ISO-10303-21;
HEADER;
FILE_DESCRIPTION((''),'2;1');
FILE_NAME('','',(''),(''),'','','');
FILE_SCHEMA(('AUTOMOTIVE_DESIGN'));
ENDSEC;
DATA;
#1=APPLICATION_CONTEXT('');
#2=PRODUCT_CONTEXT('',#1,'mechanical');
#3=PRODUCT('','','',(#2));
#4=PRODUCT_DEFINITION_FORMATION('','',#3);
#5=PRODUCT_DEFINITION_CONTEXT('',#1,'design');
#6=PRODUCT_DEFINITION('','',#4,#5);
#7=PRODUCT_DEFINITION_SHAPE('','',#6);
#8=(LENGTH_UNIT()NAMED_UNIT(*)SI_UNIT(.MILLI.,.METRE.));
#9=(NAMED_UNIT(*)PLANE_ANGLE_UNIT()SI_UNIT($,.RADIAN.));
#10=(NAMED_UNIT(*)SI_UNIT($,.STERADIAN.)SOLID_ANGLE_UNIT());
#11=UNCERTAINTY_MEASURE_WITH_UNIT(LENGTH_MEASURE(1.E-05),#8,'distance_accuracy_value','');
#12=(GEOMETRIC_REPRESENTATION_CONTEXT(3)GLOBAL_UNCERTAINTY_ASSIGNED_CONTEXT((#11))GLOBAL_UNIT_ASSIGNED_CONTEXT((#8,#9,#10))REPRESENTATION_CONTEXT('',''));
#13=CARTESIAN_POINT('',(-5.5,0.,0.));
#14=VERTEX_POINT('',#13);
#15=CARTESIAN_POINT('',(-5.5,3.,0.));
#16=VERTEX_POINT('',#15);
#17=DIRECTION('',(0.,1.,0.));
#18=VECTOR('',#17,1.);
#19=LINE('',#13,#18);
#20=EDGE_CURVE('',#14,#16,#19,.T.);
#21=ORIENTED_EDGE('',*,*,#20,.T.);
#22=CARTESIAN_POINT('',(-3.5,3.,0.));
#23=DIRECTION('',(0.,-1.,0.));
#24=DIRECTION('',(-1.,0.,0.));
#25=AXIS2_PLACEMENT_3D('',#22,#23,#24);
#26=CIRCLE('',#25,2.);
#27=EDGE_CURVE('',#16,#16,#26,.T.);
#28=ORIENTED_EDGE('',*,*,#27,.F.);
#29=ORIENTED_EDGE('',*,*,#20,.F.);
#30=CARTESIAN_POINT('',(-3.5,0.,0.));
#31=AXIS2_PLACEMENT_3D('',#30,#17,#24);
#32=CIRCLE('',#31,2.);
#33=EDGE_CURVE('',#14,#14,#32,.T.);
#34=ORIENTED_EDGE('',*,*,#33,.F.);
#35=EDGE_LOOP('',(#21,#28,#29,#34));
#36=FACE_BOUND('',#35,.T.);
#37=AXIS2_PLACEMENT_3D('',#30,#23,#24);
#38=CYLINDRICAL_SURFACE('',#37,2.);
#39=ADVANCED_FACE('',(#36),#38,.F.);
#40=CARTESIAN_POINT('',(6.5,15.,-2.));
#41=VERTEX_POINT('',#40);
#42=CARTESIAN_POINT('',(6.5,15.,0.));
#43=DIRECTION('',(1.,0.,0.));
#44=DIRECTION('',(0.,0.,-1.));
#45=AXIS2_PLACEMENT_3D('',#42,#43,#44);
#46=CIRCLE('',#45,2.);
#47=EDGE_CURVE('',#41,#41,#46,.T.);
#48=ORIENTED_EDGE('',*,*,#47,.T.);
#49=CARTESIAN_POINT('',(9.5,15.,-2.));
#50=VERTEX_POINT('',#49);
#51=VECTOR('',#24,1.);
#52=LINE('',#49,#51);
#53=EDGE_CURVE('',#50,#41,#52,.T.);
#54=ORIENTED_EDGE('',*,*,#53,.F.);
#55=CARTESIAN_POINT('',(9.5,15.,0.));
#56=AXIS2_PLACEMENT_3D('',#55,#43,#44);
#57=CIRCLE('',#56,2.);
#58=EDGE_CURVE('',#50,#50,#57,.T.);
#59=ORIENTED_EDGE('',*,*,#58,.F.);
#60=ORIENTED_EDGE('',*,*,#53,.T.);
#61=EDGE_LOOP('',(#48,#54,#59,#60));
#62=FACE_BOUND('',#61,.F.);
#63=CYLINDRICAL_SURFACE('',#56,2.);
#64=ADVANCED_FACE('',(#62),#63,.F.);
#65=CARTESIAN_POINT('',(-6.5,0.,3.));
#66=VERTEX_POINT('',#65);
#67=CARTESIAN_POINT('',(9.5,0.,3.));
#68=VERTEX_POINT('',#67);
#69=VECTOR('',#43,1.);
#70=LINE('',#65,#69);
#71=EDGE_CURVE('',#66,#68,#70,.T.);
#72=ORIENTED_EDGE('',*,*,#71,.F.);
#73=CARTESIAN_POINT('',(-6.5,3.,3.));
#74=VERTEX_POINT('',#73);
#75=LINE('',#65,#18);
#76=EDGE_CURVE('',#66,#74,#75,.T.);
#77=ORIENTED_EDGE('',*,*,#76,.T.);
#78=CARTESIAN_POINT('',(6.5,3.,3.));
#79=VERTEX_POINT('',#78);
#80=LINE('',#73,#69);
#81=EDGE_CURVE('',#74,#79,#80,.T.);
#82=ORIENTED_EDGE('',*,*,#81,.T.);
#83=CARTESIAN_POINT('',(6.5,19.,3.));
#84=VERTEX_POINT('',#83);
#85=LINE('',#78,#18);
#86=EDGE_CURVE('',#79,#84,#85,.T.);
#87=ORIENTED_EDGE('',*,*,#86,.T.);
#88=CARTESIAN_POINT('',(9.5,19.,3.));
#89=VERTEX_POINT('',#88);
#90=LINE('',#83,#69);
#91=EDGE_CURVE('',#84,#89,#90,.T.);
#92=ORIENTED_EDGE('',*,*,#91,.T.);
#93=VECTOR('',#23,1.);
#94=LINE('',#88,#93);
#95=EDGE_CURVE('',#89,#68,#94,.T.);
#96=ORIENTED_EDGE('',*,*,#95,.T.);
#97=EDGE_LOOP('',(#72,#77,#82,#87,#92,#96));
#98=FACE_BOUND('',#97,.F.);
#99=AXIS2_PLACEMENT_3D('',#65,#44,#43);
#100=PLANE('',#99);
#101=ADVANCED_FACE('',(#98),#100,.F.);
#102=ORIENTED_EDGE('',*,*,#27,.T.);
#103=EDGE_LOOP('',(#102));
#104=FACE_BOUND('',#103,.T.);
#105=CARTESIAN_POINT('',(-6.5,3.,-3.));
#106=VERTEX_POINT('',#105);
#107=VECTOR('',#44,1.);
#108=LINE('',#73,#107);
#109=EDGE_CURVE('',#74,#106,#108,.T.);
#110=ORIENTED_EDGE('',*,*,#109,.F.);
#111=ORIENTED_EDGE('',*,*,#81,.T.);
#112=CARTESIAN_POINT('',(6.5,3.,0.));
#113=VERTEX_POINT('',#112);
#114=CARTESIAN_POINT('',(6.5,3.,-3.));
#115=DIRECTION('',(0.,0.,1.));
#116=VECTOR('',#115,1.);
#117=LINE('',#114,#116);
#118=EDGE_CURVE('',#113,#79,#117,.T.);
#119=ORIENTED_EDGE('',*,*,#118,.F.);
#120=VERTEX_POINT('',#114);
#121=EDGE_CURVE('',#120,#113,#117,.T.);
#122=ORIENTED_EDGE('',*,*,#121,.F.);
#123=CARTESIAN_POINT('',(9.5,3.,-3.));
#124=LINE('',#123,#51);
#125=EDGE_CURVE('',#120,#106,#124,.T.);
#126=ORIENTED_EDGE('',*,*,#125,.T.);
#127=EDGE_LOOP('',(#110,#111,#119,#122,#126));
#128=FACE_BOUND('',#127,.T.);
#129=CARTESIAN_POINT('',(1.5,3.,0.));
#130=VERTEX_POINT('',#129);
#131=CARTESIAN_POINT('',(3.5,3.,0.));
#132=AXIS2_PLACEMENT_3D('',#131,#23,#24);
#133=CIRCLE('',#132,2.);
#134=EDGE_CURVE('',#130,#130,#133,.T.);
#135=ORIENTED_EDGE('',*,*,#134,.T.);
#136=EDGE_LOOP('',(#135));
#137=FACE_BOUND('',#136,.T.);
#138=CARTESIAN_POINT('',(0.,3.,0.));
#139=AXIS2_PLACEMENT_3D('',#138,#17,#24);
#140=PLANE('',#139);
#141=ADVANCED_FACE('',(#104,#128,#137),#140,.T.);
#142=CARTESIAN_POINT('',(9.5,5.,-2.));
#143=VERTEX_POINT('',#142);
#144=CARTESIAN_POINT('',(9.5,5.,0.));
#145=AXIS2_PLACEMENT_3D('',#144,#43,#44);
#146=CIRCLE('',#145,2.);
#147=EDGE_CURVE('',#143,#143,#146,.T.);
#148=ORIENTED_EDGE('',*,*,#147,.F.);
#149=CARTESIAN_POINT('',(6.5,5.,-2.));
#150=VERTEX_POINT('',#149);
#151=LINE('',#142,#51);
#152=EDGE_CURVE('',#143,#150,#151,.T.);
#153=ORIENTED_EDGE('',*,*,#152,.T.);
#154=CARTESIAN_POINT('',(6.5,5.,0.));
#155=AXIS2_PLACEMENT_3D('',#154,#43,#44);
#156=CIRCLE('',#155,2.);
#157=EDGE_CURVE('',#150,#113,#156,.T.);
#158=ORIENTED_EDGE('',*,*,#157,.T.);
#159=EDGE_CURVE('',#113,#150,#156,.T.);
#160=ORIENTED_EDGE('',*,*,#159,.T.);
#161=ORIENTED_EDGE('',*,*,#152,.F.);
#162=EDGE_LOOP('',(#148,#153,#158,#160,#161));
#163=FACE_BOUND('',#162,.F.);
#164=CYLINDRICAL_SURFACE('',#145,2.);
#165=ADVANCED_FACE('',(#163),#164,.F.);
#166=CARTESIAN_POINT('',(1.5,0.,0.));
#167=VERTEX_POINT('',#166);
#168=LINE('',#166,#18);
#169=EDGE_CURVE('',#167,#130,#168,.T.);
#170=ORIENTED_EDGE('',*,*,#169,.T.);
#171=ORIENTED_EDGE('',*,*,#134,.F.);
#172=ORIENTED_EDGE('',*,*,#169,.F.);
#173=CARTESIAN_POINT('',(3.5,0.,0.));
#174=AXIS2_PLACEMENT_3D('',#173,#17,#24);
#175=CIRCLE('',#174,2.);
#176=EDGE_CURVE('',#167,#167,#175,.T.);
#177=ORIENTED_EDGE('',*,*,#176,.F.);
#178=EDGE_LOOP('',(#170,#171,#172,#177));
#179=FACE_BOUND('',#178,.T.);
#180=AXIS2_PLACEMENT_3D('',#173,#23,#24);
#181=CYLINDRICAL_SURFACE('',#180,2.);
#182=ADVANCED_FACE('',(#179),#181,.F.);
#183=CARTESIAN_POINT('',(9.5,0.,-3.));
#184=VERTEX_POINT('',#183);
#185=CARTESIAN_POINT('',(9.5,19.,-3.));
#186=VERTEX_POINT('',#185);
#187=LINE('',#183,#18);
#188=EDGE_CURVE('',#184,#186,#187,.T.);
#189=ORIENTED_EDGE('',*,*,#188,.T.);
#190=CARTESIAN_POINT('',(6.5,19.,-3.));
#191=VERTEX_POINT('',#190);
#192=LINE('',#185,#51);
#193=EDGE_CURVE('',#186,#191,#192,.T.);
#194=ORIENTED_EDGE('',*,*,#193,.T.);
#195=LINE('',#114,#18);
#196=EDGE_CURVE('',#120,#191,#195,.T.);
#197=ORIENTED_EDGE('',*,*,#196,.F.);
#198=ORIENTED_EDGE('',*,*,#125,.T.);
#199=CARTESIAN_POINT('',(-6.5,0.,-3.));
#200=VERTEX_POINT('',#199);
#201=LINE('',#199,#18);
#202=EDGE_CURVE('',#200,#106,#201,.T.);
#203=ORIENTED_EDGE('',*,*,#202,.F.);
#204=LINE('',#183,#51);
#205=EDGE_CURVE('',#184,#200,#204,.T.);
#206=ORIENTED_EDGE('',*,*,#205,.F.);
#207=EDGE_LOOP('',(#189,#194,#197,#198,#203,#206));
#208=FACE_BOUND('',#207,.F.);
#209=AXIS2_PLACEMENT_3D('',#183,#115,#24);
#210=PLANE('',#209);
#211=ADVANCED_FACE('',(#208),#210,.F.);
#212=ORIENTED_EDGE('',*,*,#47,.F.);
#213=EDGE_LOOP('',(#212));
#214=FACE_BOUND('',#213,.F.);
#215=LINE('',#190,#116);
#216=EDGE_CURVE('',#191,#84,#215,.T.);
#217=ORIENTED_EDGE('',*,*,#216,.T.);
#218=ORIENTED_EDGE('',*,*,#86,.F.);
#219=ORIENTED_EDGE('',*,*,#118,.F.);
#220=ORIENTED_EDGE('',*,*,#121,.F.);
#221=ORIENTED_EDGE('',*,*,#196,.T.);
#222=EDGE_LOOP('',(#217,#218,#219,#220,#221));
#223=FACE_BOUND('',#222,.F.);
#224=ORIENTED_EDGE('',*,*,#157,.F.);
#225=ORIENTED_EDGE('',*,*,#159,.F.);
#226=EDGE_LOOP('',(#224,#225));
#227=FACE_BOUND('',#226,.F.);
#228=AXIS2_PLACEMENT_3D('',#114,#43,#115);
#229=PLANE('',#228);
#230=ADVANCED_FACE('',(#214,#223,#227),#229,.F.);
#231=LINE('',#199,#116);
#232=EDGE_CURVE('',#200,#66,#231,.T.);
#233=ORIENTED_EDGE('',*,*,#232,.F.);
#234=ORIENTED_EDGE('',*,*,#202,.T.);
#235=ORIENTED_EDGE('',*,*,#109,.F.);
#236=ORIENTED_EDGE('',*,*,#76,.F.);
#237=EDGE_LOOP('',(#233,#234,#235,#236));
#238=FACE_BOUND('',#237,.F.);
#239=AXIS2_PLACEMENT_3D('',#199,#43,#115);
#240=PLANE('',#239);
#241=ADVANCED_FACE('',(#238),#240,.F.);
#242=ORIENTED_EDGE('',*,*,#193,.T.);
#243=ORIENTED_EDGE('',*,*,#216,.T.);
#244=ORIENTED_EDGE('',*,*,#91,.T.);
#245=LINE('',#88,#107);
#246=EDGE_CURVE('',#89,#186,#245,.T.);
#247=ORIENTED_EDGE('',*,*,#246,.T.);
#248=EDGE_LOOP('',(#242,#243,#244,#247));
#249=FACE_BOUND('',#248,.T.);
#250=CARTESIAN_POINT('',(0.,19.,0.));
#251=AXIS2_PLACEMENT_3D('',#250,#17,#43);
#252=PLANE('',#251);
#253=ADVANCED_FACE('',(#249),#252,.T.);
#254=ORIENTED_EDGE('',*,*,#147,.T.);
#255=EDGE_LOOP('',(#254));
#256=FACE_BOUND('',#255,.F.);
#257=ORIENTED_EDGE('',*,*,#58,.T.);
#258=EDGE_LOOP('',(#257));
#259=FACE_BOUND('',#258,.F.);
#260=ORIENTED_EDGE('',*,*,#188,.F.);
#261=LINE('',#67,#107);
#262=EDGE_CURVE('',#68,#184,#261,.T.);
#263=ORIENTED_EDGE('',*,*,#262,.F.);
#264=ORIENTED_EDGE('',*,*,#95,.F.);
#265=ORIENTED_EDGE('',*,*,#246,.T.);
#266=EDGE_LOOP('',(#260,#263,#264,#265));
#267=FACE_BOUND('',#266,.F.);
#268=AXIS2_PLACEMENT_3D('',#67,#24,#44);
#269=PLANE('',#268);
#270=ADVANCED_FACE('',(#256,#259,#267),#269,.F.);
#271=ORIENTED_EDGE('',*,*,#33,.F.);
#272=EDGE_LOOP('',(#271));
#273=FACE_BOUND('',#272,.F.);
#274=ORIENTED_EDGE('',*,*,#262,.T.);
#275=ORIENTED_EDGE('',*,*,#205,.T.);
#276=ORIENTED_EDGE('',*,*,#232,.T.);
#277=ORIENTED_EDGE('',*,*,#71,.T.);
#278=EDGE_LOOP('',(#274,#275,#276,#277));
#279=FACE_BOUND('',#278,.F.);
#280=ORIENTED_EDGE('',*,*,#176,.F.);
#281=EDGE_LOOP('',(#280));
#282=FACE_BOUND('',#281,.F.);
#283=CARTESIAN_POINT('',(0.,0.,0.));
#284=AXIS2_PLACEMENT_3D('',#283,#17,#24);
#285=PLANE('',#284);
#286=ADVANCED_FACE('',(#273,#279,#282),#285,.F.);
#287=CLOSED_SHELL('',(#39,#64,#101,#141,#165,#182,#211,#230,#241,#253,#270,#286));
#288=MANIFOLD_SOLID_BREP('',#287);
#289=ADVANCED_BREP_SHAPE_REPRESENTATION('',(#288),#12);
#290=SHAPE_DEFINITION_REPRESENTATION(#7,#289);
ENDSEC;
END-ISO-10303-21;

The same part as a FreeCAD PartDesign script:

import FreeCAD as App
import Part
import Sketcher
Q = App.Units.Quantity


def add_polygon(sketch, points):
    """Adds a closed chain of lines whose ends are joined by coincident constraints."""
    first, n = sketch.GeometryCount, len(points)
    for a, b in zip(points, points[1:] + points[:1]):
        sketch.addGeometry(Part.LineSegment(App.Vector(*a, 0), App.Vector(*b, 0)), False)
    for i in range(n):
        sketch.addConstraint(Sketcher.Constraint("Coincident", first + i, 2, first + (i + 1) % n, 1))

doc = App.newDocument("Part")
body = doc.addObject("PartDesign::Body", "Body")

# Sketch on XZ plane
sketch1 = body.newObject("Sketcher::SketchObject", "Sketch")
sketch1.AttachmentSupport = (doc.getObject("XZ_Plane"), [""])
sketch1.MapMode = "FlatFace"
add_polygon(sketch1, [(9.5, 3), (9.5, -3), (-6.5, -3), (-6.5, 3)])  # lines 0-3
sketch1.addGeometry(Part.Circle(App.Vector(3.5, 0, 0), App.Vector(0, 0, 1), 2), False)  # 4
sketch1.addGeometry(Part.Circle(App.Vector(-3.5, 0, 0), App.Vector(0, 0, 1), 2), False)  # 5
sketch1.addConstraint(Sketcher.Constraint("Vertical", 0))
sketch1.addConstraint(Sketcher.Constraint("Horizontal", 1))
sketch1.addConstraint(Sketcher.Constraint("Vertical", 2))
sketch1.addConstraint(Sketcher.Constraint("Horizontal", 3))
sketch1.addConstraint(Sketcher.Constraint("Equal", 4, 5))
sketch1.addConstraint(Sketcher.Constraint("Symmetric", 4, 3, 5, 3, -1, 1))
sketch1.addConstraint(Sketcher.Constraint("PointOnObject", 4, 3, -1))
sketch1.addConstraint(Sketcher.Constraint("Diameter", 4, Q("4 mm")))
sketch1.addConstraint(Sketcher.Constraint("DistanceY", 0, 2, 0, 1, Q("6 mm")))
sketch1.addConstraint(Sketcher.Constraint("DistanceY", 0, 2, -1, 1, Q("3 mm")))
sketch1.addConstraint(Sketcher.Constraint("DistanceX", 5, 3, 4, 3, Q("7 mm")))
sketch1.addConstraint(Sketcher.Constraint("DistanceX", 4, 3, 0, 2, Q("6 mm")))
sketch1.addConstraint(Sketcher.Constraint("DistanceX", 1, 2, 5, 3, Q("3 mm")))
pad1 = body.newObject("PartDesign::Pad", "Pad")
pad1.Profile = sketch1
pad1.Length = 3
pad1.Reversed = True

# Sketch on XZ plane
sketch2 = body.newObject("Sketcher::SketchObject", "Sketch001")
sketch2.AttachmentSupport = (doc.getObject("XZ_Plane"), [""])
sketch2.MapMode = "FlatFace"
sketch2.AttachmentOffset = App.Placement(App.Vector(0, 0, -3), App.Rotation())
add_polygon(sketch2, [(9.5, 3), (9.5, -3), (6.5, -3), (6.5, 3)])  # lines 0-3
sketch2.addConstraint(Sketcher.Constraint("Vertical", 0))
sketch2.addConstraint(Sketcher.Constraint("Horizontal", 1))
sketch2.addConstraint(Sketcher.Constraint("Vertical", 2))
sketch2.addConstraint(Sketcher.Constraint("Horizontal", 3))
sketch2.addConstraint(Sketcher.Constraint("DistanceX", 1, 2, 1, 1, Q("3 mm")))
sketch2.addConstraint(Sketcher.Constraint("DistanceY", 0, 2, -1, 1, Q("3 mm")))
sketch2.addConstraint(Sketcher.Constraint("DistanceY", -1, 1, 2, 2, Q("3 mm")))
sketch2.addConstraint(Sketcher.Constraint("DistanceX", -1, 1, 0, 2, Q("9.5 mm")))
pad2 = body.newObject("PartDesign::Pad", "Pad001")
pad2.Profile = sketch2
pad2.Length = 16
pad2.Reversed = True

# Sketch on YZ plane
sketch3 = body.newObject("Sketcher::SketchObject", "Sketch002")
sketch3.AttachmentSupport = (doc.getObject("YZ_Plane"), [""])
sketch3.MapMode = "FlatFace"
sketch3.AttachmentOffset = App.Placement(App.Vector(0, 0, 9.5), App.Rotation())
sketch3.addGeometry(Part.Circle(App.Vector(5, 0, 0), App.Vector(0, 0, 1), 2), False)
sketch3.addGeometry(Part.Circle(App.Vector(15, 0, 0), App.Vector(0, 0, 1), 2), False)
sketch3.addConstraint(Sketcher.Constraint("Equal", 0, 1))
sketch3.addConstraint(Sketcher.Constraint("PointOnObject", 0, 3, -1))
sketch3.addConstraint(Sketcher.Constraint("PointOnObject", 1, 3, -1))
sketch3.addConstraint(Sketcher.Constraint("Diameter", 0, Q("4 mm")))
sketch3.addConstraint(Sketcher.Constraint("DistanceX", -1, 1, 0, 3, Q("5 mm")))
sketch3.addConstraint(Sketcher.Constraint("DistanceX", 0, 3, 1, 3, Q("10 mm")))
pocket1 = body.newObject("PartDesign::Pocket", "Pocket")
pocket1.Profile = sketch3
pocket1.Type = "ThroughAll"

doc.recompute()
